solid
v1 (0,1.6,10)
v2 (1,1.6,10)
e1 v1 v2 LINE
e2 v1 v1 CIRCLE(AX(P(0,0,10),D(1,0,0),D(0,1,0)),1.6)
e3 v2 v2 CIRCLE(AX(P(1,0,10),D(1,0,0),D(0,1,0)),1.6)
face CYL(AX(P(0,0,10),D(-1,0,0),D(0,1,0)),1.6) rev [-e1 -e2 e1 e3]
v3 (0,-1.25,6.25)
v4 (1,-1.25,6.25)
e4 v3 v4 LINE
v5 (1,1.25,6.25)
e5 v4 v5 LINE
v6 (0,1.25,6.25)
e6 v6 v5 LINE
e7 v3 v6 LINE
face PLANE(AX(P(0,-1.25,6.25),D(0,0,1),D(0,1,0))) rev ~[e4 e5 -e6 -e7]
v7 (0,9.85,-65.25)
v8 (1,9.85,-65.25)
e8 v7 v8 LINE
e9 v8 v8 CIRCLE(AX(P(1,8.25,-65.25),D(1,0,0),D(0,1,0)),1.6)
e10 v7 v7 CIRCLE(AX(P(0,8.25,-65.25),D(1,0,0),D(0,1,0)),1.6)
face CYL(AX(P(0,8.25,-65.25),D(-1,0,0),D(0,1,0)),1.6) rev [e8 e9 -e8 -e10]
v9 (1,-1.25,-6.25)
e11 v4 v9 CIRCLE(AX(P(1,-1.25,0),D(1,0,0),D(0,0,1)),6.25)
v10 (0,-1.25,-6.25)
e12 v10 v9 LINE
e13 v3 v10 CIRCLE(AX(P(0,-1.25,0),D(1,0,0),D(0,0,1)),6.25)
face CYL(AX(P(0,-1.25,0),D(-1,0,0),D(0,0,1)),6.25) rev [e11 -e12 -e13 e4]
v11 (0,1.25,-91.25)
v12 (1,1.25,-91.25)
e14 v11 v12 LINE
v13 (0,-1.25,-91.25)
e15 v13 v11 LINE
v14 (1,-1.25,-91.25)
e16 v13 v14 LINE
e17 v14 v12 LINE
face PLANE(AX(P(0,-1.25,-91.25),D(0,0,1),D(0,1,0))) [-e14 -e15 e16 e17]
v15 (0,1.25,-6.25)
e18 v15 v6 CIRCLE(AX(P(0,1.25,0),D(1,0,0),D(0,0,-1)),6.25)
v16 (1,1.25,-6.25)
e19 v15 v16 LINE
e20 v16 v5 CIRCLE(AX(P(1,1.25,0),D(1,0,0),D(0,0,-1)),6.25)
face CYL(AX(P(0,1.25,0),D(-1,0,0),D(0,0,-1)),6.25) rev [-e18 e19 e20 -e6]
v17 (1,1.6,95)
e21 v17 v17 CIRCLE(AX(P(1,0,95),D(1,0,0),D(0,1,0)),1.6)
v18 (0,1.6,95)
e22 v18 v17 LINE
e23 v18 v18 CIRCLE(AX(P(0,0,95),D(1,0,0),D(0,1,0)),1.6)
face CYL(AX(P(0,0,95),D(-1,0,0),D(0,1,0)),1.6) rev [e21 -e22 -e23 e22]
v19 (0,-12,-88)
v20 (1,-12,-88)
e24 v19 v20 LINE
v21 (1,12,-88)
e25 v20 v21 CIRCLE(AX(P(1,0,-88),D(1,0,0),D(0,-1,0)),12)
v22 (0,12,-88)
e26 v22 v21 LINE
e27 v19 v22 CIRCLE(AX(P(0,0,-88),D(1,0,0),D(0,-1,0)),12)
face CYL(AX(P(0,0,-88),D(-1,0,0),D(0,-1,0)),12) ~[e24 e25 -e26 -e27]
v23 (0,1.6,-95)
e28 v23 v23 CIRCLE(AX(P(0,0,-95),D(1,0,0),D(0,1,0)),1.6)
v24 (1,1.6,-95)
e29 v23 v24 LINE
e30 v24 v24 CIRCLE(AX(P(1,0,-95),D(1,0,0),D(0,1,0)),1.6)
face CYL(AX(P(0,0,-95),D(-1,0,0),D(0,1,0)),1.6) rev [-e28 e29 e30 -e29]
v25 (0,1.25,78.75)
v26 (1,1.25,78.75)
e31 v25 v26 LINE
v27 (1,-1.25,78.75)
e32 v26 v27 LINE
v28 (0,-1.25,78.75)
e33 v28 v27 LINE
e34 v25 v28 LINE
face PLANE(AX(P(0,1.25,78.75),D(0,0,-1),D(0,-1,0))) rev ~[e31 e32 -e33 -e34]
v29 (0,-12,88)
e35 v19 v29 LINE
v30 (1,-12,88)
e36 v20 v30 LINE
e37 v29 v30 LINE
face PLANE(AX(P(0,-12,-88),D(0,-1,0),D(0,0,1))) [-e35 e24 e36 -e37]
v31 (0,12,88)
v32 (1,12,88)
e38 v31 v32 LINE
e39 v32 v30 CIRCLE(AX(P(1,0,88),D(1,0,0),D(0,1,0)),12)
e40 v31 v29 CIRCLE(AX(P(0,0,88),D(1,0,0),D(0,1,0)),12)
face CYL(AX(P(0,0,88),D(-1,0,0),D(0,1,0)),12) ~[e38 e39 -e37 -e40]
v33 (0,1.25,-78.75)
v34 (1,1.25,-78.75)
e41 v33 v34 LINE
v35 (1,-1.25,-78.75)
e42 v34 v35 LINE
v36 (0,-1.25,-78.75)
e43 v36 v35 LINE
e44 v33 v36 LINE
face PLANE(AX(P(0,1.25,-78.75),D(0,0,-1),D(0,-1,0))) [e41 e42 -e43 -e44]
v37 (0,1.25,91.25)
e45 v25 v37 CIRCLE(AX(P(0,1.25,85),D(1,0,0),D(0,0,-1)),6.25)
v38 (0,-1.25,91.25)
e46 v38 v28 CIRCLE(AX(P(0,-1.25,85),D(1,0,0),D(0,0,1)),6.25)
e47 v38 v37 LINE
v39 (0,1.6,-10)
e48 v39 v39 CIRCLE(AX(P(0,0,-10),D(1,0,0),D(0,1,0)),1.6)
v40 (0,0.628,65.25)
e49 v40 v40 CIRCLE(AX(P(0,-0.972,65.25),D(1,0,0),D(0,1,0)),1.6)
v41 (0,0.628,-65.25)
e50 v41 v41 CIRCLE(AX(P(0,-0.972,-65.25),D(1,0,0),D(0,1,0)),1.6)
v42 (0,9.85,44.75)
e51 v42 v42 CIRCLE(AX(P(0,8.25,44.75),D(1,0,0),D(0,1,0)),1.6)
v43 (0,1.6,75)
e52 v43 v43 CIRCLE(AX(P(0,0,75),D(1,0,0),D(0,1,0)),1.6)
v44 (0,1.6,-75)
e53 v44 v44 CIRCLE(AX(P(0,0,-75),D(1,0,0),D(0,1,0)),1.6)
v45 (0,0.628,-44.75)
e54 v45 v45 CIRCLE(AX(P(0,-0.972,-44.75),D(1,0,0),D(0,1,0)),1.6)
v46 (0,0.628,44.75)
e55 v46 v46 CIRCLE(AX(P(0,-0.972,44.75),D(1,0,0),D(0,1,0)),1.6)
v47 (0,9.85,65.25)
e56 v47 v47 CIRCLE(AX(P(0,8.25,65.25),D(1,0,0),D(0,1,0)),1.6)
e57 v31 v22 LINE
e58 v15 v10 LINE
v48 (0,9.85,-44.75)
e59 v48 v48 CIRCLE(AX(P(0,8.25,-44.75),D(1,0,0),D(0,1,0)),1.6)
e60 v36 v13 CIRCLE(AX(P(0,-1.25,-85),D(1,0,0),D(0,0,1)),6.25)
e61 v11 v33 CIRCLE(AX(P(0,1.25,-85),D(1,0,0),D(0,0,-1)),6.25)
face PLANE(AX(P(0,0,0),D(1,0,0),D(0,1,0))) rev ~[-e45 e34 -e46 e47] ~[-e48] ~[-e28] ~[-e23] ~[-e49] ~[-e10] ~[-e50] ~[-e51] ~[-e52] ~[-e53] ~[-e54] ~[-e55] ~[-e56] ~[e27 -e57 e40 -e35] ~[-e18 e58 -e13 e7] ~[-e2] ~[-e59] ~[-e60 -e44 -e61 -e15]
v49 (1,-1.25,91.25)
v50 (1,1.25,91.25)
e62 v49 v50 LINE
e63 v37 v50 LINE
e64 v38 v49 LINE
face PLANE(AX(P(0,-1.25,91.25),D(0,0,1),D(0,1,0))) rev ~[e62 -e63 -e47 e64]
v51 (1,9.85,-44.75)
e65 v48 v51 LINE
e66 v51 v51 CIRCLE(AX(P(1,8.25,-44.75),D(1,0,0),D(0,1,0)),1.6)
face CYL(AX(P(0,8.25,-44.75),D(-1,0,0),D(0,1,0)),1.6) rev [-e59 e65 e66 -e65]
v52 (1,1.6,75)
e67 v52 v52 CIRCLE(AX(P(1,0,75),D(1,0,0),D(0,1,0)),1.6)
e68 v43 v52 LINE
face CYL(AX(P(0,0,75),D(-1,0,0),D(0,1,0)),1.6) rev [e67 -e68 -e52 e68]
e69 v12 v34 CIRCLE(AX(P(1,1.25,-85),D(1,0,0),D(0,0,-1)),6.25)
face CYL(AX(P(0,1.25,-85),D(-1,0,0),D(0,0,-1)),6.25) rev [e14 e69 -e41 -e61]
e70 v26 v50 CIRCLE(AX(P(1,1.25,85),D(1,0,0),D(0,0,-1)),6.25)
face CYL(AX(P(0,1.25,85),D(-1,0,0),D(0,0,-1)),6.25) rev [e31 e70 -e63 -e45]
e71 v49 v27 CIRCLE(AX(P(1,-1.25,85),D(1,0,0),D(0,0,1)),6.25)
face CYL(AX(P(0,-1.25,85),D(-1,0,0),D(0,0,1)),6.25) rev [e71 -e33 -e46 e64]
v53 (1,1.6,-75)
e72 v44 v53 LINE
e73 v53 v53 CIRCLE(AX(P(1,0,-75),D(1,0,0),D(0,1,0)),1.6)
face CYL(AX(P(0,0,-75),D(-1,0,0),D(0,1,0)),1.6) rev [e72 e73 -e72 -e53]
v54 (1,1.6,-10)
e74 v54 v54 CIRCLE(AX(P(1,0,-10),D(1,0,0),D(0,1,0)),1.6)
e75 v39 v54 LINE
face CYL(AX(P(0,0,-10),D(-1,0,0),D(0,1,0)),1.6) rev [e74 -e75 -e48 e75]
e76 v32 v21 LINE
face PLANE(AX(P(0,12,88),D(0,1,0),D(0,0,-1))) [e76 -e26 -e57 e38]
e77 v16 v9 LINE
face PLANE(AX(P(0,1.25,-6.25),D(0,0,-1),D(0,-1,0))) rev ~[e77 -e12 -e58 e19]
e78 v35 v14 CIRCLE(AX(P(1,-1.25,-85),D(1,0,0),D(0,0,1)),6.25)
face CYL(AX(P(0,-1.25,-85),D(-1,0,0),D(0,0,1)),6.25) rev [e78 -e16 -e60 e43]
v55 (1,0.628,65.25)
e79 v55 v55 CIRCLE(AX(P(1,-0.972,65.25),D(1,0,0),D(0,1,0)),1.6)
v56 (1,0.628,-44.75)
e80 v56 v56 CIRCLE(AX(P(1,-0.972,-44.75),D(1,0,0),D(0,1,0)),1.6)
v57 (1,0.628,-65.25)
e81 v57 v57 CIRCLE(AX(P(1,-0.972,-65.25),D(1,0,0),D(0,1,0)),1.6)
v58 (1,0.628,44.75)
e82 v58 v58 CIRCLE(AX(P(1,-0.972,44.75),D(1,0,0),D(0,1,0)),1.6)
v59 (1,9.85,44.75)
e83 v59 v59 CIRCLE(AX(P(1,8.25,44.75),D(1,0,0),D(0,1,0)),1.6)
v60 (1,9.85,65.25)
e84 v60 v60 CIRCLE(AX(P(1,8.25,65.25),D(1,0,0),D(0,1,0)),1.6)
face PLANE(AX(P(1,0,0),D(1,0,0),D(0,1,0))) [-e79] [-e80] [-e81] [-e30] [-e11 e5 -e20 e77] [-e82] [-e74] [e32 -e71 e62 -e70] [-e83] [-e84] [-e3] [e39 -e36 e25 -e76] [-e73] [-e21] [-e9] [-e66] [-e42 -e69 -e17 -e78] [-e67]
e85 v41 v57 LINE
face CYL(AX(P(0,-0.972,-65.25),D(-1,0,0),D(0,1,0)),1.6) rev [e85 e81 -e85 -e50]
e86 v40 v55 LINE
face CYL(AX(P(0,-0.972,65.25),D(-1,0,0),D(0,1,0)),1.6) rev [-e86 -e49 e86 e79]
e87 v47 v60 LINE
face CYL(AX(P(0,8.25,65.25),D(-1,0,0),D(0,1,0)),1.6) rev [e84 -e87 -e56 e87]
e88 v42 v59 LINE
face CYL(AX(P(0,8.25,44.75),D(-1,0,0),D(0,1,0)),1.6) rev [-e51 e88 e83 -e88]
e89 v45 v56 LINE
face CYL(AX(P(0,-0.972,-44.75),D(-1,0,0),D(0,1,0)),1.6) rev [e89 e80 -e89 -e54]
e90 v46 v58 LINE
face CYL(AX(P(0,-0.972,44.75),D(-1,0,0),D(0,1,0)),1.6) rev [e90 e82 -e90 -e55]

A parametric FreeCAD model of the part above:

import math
import FreeCAD as App
import Part
import Sketcher
from FreeCAD import Vector

doc = App.newDocument("Part")
body = doc.addObject("PartDesign::Body", "Body")

sketch1 = body.newObject("Sketcher::SketchObject", "Sketch")
sketch1.AttachmentSupport = (doc.getObject("YZ_Plane"), [""])
sketch1.MapMode = "FlatFace"
sketch1.addGeometry(Part.LineSegment(Vector(12, -88, 0), Vector(12, 88, 0)), False)
sketch1.addGeometry(Part.ArcOfCircle(Part.Circle(Vector(0, 88, 0), Vector(0, 0, 1), 12), math.radians(0), math.radians(180)), False)
sketch1.addGeometry(Part.LineSegment(Vector(-12, 88, 0), Vector(-12, -88, 0)), False)
sketch1.addGeometry(Part.ArcOfCircle(Part.Circle(Vector(0, -88, 0), Vector(0, 0, 1), 12), math.radians(180), math.radians(360)), False)
sketch1.addGeometry(Part.Circle(Vector(-1, -65.2, 0), Vector(0, 0, 1), 1.6), False)
sketch1.addGeometry(Part.Circle(Vector(-1, -44.8, 0), Vector(0, 0, 1), 1.6), False)
sketch1.addGeometry(Part.Circle(Vector(0, -95, 0), Vector(0, 0, 1), 1.6), False)
sketch1.addGeometry(Part.LineSegment(Vector(1.2, -91.2, 0), Vector(-1.2, -91.2, 0)), False)
sketch1.addGeometry(Part.ArcOfCircle(Part.Circle(Vector(-1.2, -85, 0), Vector(0, 0, 1), 6.2), math.radians(90), math.radians(270)), False)
sketch1.addGeometry(Part.LineSegment(Vector(-1.2, -78.8, 0), Vector(1.2, -78.8, 0)), False)
sketch1.addGeometry(Part.ArcOfCircle(Part.Circle(Vector(1.2, -85, 0), Vector(0, 0, 1), 6.2), math.radians(-90), math.radians(90)), False)
sketch1.addGeometry(Part.Circle(Vector(0, -75, 0), Vector(0, 0, 1), 1.6), False)
sketch1.addGeometry(Part.Circle(Vector(8.2, -65.2, 0), Vector(0, 0, 1), 1.6), False)
sketch1.addGeometry(Part.Circle(Vector(0, -10, 0), Vector(0, 0, 1), 1.6), False)
sketch1.addGeometry(Part.Circle(Vector(8.2, -44.8, 0), Vector(0, 0, 1), 1.6), False)
sketch1.addGeometry(Part.Circle(Vector(-1, 44.8, 0), Vector(0, 0, 1), 1.6), False)
sketch1.addGeometry(Part.Circle(Vector(-1, 65.2, 0), Vector(0, 0, 1), 1.6), False)
sketch1.addGeometry(Part.ArcOfCircle(Part.Circle(Vector(-1.2, 0, 0), Vector(0, 0, 1), 6.2), math.radians(90), math.radians(270)), False)
sketch1.addGeometry(Part.LineSegment(Vector(-1.2, 6.2, 0), Vector(1.2, 6.2, 0)), False)
sketch1.addGeometry(Part.ArcOfCircle(Part.Circle(Vector(1.2, 0, 0), Vector(0, 0, 1), 6.2), math.radians(-90), math.radians(90)), False)
sketch1.addGeometry(Part.LineSegment(Vector(1.2, -6.2, 0), Vector(-1.2, -6.2, 0)), False)
sketch1.addGeometry(Part.Circle(Vector(0, 10, 0), Vector(0, 0, 1), 1.6), False)
sketch1.addGeometry(Part.Circle(Vector(8.2, 44.8, 0), Vector(0, 0, 1), 1.6), False)
sketch1.addGeometry(Part.Circle(Vector(0, 75, 0), Vector(0, 0, 1), 1.6), False)
sketch1.addGeometry(Part.ArcOfCircle(Part.Circle(Vector(-1.2, 85, 0), Vector(0, 0, 1), 6.2), math.radians(90), math.radians(270)), False)
sketch1.addGeometry(Part.LineSegment(Vector(-1.2, 91.2, 0), Vector(1.2, 91.2, 0)), False)
sketch1.addGeometry(Part.ArcOfCircle(Part.Circle(Vector(1.2, 85, 0), Vector(0, 0, 1), 6.2), math.radians(-90), math.radians(90)), False)
sketch1.addGeometry(Part.LineSegment(Vector(1.2, 78.8, 0), Vector(-1.2, 78.8, 0)), False)
sketch1.addGeometry(Part.Circle(Vector(0, 95, 0), Vector(0, 0, 1), 1.6), False)
sketch1.addGeometry(Part.Circle(Vector(8.2, 65.2, 0), Vector(0, 0, 1), 1.6), False)
sketch1.addConstraint(Sketcher.Constraint("Tangent", 0, 2, 1, 1))
sketch1.addConstraint(Sketcher.Constraint("Tangent", 1, 2, 2, 1))
sketch1.addConstraint(Sketcher.Constraint("Tangent", 2, 2, 3, 1))
sketch1.addConstraint(Sketcher.Constraint("Tangent", 3, 2, 0, 1))
sketch1.addConstraint(Sketcher.Constraint("Tangent", 7, 2, 8, 2))
sketch1.addConstraint(Sketcher.Constraint("Tangent", 8, 1, 9, 1))
sketch1.addConstraint(Sketcher.Constraint("Tangent", 9, 2, 10, 2))
sketch1.addConstraint(Sketcher.Constraint("Tangent", 10, 1, 7, 1))
sketch1.addConstraint(Sketcher.Constraint("Tangent", 17, 1, 18, 1))
sketch1.addConstraint(Sketcher.Constraint("Tangent", 18, 2, 19, 2))
sketch1.addConstraint(Sketcher.Constraint("Tangent", 19, 1, 20, 1))
sketch1.addConstraint(Sketcher.Constraint("Tangent", 20, 2, 17, 2))
sketch1.addConstraint(Sketcher.Constraint("Tangent", 24, 1, 25, 1))
sketch1.addConstraint(Sketcher.Constraint("Tangent", 25, 2, 26, 2))
sketch1.addConstraint(Sketcher.Constraint("Tangent", 26, 1, 27, 1))
sketch1.addConstraint(Sketcher.Constraint("Tangent", 27, 2, 24, 2))
sketch1.addConstraint(Sketcher.Constraint("Vertical", 0))
sketch1.addConstraint(Sketcher.Constraint("Vertical", 2))
sketch1.addConstraint(Sketcher.Constraint("Horizontal", 7))
sketch1.addConstraint(Sketcher.Constraint("Horizontal", 9))
sketch1.addConstraint(Sketcher.Constraint("Horizontal", 18))
sketch1.addConstraint(Sketcher.Constraint("Horizontal", 20))
sketch1.addConstraint(Sketcher.Constraint("Horizontal", 25))
sketch1.addConstraint(Sketcher.Constraint("Horizontal", 27))
sketch1.addConstraint(Sketcher.Constraint("Equal", 4, 5))
sketch1.addConstraint(Sketcher.Constraint("Equal", 5, 6))
sketch1.addConstraint(Sketcher.Constraint("Equal", 6, 11))
sketch1.addConstraint(Sketcher.Constraint("Equal", 11, 12))
sketch1.addConstraint(Sketcher.Constraint("Equal", 12, 13))
sketch1.addConstraint(Sketcher.Constraint("Equal", 13, 14))
sketch1.addConstraint(Sketcher.Constraint("Equal", 14, 15))
sketch1.addConstraint(Sketcher.Constraint("Equal", 15, 16))
sketch1.addConstraint(Sketcher.Constraint("Equal", 10, 17))
sketch1.addConstraint(Sketcher.Constraint("Equal", 16, 21))
sketch1.addConstraint(Sketcher.Constraint("Equal", 21, 22))
sketch1.addConstraint(Sketcher.Constraint("Equal", 22, 23))
sketch1.addConstraint(Sketcher.Constraint("Equal", 19, 24))
sketch1.addConstraint(Sketcher.Constraint("Equal", 23, 28))
sketch1.addConstraint(Sketcher.Constraint("Equal", 28, 29))
sketch1.addConstraint(Sketcher.Constraint("Symmetric", 1, 3, 3, 3, -1, 1))
sketch1.addConstraint(Sketcher.Constraint("Symmetric", 17, 3, 19, 3, -1, 1))
sketch1.addConstraint(Sketcher.Constraint("Symmetric", 13, 3, 21, 3, -1, 1))
sketch1.addConstraint(Sketcher.Constraint("Symmetric", 11, 3, 23, 3, -1, 1))
sketch1.addConstraint(Sketcher.Constraint("Symmetric", 10, 3, 24, 3, -1, 1))
sketch1.addConstraint(Sketcher.Constraint("Symmetric", 6, 3, 28, 3, -1, 1))
sketch1.addConstraint(Sketcher.Constraint("Symmetric", 5, 3, 15, 3, -1))
sketch1.addConstraint(Sketcher.Constraint("Symmetric", 4, 3, 16, 3, -1))
sketch1.addConstraint(Sketcher.Constraint("Symmetric", 14, 3, 22, 3, -1))
sketch1.addConstraint(Sketcher.Constraint("Symmetric", 12, 3, 29, 3, -1))
sketch1.addConstraint(Sketcher.Constraint("PointOnObject", 6, 3, -2))
sketch1.addConstraint(Sketcher.Constraint("PointOnObject", 11, 3, -2))
sketch1.addConstraint(Sketcher.Constraint("PointOnObject", 13, 3, -2))
sketch1.addConstraint(Sketcher.Constraint("Horizontal", 4, 3, 12, 3))
sketch1.addConstraint(Sketcher.Constraint("Horizontal", 5, 3, 14, 3))
sketch1.addConstraint(Sketcher.Constraint("Vertical", 4, 3, 5, 3))
sketch1.addConstraint(Sketcher.Constraint("Vertical", 12, 3, 14, 3))
sketch1.addConstraint(Sketcher.Constraint("Vertical", 8, 3, 17, 3))
sketch1.addConstraint(Sketcher.Constraint("Vertical", 10, 3, 19, 3))
sketch1.addConstraint(Sketcher.Constraint("Vertical", 19, 3, 26, 3))
sketch1.addConstraint(Sketcher.Constraint("Diameter", 4, 3.2))
sketch1.addConstraint(Sketcher.Constraint("Radius", 1, 12.0))
sketch1.addConstraint(Sketcher.Constraint("DistanceY", 0, 1, 0, 2, 176.0))
sketch1.addConstraint(Sketcher.Constraint("Radius", 8, 6.25))
sketch1.addConstraint(Sketcher.Constraint("DistanceX", 7, 2, 7, 1, 2.5))
sketch1.addConstraint(Sketcher.Constraint("DistanceY", 6, 3, -1, 1, 95.0))
sketch1.addConstraint(Sketcher.Constraint("DistanceY", 8, 3, -1, 1, 85.0))
sketch1.addConstraint(Sketcher.Constraint("DistanceY", 11, 3, -1, 1, 75.0))
sketch1.addConstraint(Sketcher.Constraint("DistanceY", 13, 3, -1, 1, 10.0))
sketch1.addConstraint(Sketcher.Constraint("DistanceX", 4, 3, 12, 3, 9.222))
sketch1.addConstraint(Sketcher.Constraint("DistanceX", 10, 3, 12, 3, 7.0))
sketch1.addConstraint(Sketcher.Constraint("DistanceY", 4, 3, 15, 3, 110.0))
sketch1.addConstraint(Sketcher.Constraint("DistanceY", 4, 3, 5, 3, 20.5))
pad1 = body.newObject("PartDesign::Pad", "Pad")
pad1.Profile = sketch1
pad1.Length = 1

doc.recompute()
